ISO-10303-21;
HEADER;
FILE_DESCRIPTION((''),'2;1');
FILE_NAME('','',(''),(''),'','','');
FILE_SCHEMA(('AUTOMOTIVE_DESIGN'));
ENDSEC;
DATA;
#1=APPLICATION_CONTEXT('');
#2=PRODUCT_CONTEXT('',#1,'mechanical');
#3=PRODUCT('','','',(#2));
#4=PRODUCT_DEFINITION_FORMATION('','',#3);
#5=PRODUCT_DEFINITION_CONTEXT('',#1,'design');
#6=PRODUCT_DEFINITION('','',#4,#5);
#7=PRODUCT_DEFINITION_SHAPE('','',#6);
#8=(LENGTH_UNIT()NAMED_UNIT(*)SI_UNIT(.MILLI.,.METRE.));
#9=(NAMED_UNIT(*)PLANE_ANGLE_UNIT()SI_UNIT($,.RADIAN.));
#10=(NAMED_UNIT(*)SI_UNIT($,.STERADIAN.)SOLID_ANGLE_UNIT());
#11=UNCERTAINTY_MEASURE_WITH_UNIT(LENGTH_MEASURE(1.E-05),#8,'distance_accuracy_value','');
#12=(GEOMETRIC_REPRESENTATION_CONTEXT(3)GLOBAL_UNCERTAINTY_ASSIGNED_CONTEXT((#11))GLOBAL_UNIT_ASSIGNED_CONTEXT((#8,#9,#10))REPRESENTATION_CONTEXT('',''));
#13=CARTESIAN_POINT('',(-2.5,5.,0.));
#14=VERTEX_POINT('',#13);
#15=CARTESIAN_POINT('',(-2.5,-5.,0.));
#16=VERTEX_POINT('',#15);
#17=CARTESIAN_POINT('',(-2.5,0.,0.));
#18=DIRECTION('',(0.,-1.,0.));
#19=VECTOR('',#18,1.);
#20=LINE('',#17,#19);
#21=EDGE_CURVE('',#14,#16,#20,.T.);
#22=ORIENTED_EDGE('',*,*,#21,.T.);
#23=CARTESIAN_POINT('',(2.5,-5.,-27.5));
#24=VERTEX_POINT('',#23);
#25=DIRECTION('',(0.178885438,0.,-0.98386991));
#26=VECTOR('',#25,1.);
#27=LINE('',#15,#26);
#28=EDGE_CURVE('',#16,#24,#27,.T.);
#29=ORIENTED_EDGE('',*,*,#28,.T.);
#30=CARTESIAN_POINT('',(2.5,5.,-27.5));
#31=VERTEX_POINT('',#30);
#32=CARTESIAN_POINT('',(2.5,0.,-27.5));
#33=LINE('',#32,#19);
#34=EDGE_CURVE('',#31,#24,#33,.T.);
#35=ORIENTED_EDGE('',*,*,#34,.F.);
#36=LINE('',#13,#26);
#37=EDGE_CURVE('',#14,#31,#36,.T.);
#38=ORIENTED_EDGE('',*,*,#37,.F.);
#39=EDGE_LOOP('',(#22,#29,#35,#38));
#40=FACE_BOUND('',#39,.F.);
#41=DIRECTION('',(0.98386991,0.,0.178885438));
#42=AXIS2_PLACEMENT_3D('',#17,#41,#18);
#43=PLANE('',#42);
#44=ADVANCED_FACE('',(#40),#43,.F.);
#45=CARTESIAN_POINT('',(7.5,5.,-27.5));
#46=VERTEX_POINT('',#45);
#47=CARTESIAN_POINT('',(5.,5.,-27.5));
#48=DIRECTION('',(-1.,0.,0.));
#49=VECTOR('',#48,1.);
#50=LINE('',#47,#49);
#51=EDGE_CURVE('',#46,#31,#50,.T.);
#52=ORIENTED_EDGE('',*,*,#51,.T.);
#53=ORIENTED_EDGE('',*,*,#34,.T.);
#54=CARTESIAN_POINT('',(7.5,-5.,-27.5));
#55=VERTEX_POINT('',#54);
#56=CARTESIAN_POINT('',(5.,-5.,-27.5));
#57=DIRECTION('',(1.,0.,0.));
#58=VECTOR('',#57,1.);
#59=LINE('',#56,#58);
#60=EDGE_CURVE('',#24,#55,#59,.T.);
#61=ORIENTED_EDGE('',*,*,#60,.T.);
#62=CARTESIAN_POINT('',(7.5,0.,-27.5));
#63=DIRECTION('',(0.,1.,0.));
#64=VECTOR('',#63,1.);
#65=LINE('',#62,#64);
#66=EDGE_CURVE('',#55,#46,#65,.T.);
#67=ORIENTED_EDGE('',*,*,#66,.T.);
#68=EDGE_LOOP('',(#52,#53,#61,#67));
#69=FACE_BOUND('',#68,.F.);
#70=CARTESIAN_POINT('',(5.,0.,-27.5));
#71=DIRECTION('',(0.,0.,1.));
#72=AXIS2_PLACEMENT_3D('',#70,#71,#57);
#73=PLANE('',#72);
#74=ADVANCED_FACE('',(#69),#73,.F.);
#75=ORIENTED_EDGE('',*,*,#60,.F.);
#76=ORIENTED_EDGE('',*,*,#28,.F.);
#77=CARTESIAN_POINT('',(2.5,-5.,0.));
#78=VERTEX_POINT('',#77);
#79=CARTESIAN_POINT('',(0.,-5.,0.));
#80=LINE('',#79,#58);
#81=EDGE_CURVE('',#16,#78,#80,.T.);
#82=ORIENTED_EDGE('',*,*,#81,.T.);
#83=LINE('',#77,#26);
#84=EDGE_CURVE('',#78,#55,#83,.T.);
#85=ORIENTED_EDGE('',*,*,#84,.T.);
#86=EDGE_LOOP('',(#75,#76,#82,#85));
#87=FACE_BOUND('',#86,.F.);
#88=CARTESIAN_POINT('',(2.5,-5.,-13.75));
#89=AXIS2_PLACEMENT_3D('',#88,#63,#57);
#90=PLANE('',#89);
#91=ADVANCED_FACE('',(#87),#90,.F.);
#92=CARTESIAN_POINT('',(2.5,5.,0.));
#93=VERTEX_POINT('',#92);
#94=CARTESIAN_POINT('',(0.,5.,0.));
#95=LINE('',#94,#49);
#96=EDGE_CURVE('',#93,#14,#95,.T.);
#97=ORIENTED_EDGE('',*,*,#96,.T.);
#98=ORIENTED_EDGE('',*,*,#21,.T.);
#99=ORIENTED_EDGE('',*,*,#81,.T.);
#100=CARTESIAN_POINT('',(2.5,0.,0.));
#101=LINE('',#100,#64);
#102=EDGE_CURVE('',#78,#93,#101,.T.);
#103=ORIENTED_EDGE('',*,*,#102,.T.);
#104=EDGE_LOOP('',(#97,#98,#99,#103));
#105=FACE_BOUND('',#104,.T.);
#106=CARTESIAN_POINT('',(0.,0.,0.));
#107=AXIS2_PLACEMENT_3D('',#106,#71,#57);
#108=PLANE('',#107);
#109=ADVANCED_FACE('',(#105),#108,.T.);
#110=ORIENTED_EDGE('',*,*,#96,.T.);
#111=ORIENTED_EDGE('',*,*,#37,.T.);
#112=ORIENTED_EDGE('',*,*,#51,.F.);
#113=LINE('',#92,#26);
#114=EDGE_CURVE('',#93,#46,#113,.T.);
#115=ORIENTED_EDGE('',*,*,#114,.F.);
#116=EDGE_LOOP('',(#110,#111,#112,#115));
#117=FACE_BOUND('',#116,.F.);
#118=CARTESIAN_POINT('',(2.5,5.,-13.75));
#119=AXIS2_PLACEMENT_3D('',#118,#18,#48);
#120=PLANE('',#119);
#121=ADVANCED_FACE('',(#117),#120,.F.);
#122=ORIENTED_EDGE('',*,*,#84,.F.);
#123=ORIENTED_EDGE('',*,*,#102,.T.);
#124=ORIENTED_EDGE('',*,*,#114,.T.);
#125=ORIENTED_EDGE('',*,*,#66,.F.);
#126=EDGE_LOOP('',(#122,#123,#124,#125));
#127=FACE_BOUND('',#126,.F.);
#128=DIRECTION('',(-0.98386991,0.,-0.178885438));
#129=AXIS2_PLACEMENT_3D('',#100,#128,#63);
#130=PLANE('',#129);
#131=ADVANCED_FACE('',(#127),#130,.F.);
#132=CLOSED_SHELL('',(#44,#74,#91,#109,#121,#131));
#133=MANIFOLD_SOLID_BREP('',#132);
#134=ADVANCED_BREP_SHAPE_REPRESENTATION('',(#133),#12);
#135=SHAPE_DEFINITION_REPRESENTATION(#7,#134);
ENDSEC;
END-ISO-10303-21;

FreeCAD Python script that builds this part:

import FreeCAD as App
import Part
import Sketcher

V = App.Vector
Q = App.Units.Quantity

doc = App.newDocument("Part")
body = doc.addObject("PartDesign::Body", "Body")

sketch1 = doc.addObject("Sketcher::SketchObject", "Sketch")
body.addObject(sketch1)
sketch1.AttachmentSupport = (doc.XY_Plane, [""])
sketch1.MapMode = "FlatFace"
sketch1.addGeometry([
    Part.LineSegment(V(-2, 5, 0), V(-2, -5, 0)),
    Part.LineSegment(V(-2, -5, 0), V(2, -5, 0)),
    Part.LineSegment(V(2, -5, 0), V(2, 5, 0)),
    Part.LineSegment(V(2, 5, 0), V(-2, 5, 0)),
], False)
sketch1.addConstraint([
    Sketcher.Constraint("Coincident", 0, 2, 1, 1),
    Sketcher.Constraint("Coincident", 1, 2, 2, 1),
    Sketcher.Constraint("Coincident", 2, 2, 3, 1),
    Sketcher.Constraint("Coincident", 3, 2, 0, 1),
    Sketcher.Constraint("Vertical", 0),
    Sketcher.Constraint("Horizontal", 1),
    Sketcher.Constraint("Vertical", 2),
    Sketcher.Constraint("Horizontal", 3),
    Sketcher.Constraint("Symmetric", 0, 2, 2, 2, -1, 1),
    Sketcher.Constraint("DistanceX", 1, 1, 1, 2, Q("5 mm")),
    Sketcher.Constraint("DistanceY", 0, 2, 0, 1, Q("10 mm")),
])

sketch2 = doc.addObject("Sketcher::SketchObject", "Sketch001")
body.addObject(sketch2)
sketch2.Placement = App.Placement(V(0, 0, 0), App.Rotation(V(0.178885438, 0, -0.98386991), V(0, 1, 0), V(0.98386991, 0, 0.178885438), "ZXY"))
sketch2.addGeometry(Part.LineSegment(V(0, 0, 0), V(28, 0, 0)), False)
sketch2.addConstraint([
    Sketcher.Constraint("Horizontal", 0),
    Sketcher.Constraint("Coincident", 0, 1, -1, 1),
    Sketcher.Constraint("DistanceX", 0, 1, 0, 2, Q("27.95085 mm")),
])
doc.recompute()

additivepipe = doc.addObject("PartDesign::AdditivePipe", "AdditivePipe")
body.addObject(additivepipe)
additivepipe.Profile = sketch1
additivepipe.Spine = (sketch2, ["Edge1"])

doc.recompute()
